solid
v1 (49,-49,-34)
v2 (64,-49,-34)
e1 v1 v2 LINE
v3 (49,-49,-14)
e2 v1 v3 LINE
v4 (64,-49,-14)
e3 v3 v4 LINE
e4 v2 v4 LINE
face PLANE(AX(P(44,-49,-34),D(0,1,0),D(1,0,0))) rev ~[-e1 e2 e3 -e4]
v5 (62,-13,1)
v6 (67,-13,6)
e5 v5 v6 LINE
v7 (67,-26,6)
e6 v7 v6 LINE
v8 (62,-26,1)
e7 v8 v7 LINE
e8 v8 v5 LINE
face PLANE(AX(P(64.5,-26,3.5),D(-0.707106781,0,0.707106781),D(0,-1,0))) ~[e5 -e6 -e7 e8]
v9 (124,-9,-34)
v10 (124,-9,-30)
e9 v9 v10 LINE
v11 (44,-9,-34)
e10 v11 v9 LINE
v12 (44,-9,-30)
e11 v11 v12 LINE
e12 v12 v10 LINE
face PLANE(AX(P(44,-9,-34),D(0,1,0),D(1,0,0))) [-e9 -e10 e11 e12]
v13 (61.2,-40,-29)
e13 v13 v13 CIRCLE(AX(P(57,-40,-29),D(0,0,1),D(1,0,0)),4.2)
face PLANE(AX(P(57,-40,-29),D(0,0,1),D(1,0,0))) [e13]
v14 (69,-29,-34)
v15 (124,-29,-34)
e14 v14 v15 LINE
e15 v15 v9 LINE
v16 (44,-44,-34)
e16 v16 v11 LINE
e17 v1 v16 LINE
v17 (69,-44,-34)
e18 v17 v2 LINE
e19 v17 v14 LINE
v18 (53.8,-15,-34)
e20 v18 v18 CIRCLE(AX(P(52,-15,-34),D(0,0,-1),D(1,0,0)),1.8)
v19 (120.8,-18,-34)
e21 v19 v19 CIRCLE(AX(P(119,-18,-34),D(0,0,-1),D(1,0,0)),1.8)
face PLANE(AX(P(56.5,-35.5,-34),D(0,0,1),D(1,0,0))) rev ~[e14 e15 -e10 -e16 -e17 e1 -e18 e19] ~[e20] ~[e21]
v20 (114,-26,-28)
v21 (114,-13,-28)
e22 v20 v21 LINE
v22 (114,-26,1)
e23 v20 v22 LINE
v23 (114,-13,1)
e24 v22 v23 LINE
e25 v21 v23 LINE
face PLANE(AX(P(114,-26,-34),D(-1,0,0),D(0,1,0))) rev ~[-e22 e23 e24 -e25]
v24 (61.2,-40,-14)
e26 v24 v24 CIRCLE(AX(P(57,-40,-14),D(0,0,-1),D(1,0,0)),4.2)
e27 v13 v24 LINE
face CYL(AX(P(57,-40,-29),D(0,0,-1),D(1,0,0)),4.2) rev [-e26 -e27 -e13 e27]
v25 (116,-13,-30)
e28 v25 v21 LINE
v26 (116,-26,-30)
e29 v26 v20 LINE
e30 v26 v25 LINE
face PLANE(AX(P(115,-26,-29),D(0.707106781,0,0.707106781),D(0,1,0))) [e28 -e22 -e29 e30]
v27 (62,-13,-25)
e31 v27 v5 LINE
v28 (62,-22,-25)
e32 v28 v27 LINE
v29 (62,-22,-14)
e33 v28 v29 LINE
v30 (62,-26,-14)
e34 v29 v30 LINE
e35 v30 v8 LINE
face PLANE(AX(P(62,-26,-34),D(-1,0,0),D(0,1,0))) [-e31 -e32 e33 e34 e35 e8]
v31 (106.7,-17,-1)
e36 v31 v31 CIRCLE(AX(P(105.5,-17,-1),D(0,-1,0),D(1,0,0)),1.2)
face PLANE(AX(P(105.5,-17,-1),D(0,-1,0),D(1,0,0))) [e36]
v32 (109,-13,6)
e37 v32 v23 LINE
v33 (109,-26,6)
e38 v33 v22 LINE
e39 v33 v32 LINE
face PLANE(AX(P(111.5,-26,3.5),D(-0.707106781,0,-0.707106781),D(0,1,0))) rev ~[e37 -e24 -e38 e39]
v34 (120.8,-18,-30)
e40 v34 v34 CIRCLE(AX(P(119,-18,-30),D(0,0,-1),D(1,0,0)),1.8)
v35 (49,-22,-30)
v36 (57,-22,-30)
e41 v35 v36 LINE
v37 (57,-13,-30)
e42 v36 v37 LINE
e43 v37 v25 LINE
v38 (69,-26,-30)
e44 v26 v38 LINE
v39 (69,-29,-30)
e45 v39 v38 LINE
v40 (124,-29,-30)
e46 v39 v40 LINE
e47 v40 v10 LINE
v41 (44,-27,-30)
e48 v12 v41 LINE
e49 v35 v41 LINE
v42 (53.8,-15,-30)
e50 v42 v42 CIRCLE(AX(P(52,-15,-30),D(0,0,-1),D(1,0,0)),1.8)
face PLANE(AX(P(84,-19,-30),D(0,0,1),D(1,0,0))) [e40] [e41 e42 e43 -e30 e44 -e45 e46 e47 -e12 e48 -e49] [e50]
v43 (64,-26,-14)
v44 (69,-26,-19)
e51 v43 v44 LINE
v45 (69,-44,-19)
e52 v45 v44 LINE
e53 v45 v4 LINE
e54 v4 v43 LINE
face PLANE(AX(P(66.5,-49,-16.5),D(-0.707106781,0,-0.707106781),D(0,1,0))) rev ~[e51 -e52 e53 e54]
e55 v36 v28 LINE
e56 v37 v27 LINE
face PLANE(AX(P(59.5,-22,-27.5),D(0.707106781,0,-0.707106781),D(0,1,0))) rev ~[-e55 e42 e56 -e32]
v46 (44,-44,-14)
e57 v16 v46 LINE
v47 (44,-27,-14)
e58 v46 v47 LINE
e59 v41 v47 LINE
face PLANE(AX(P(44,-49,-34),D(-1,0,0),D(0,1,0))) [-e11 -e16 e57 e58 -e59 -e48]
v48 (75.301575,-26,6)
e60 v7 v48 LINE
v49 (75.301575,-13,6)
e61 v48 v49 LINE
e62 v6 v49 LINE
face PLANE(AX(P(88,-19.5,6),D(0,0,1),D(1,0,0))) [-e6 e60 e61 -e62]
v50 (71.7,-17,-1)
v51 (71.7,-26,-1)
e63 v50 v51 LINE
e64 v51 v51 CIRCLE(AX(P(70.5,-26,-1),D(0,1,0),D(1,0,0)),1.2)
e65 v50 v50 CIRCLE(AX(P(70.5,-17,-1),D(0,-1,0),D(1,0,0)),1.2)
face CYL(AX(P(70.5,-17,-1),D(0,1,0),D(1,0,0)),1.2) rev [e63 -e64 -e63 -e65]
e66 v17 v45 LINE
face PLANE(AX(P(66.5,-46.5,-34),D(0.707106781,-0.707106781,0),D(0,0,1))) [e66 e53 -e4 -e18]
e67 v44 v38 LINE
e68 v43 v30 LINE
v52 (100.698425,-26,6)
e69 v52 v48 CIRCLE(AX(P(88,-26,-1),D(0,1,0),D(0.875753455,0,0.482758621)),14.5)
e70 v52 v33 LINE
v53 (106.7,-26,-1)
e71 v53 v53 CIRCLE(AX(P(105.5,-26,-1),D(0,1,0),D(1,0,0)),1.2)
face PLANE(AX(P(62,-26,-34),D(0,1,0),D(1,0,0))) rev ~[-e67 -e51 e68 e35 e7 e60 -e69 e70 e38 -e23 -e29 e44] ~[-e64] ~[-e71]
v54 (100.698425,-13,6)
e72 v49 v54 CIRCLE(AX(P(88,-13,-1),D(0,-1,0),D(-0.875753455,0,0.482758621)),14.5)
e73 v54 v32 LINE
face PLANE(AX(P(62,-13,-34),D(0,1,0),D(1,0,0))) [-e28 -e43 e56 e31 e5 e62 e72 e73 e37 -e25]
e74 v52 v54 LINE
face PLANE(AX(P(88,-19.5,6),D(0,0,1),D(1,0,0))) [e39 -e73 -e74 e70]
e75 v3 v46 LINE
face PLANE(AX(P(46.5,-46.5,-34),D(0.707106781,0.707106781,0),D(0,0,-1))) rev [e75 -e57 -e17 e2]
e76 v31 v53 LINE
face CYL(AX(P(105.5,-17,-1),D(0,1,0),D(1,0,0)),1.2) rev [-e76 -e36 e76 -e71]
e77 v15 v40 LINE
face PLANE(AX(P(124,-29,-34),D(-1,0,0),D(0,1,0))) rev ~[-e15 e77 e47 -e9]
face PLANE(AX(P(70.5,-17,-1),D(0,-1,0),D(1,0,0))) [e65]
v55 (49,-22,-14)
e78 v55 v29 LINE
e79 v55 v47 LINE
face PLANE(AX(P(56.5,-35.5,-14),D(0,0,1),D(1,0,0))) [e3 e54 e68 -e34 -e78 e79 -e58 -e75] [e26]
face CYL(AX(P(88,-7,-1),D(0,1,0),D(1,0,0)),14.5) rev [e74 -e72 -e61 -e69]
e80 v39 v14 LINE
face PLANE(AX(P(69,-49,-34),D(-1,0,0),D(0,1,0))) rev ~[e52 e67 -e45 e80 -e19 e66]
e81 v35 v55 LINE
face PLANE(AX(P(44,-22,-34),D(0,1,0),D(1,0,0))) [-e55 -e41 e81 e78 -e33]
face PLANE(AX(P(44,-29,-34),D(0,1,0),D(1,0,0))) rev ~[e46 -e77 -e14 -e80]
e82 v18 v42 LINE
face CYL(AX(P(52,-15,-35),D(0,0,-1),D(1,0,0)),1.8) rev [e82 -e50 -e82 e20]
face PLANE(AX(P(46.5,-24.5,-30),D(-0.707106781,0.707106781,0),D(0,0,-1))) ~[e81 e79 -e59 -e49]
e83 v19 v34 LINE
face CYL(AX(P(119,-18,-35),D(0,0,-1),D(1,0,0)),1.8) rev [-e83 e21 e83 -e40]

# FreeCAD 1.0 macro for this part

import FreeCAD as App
import Part
import Sketcher
from FreeCAD import Vector


def edges_at(feature, points):
    """Names of the edges that pass closest to the given points."""
    edges = feature.Shape.Edges
    near = lambda p: min(range(len(edges)), key=lambda i: edges[i].distToShape(Part.Vertex(*p))[0])
    return sorted({f"Edge{near(p) + 1}" for p in points})

doc = App.newDocument("Part")
body = doc.addObject("PartDesign::Body", "Body")

# Sketch on XY plane
sketch1 = body.newObject("Sketcher::SketchObject", "Sketch")
sketch1.AttachmentSupport = (doc.getObject("XY_Plane"), [""])
sketch1.MapMode = "FlatFace"
sketch1.addGeometry(Part.Circle(Vector(0, 0, 0), Vector(0, 0, 1), 14), False)
sketch1.addConstraint([
    Sketcher.Constraint("Coincident", 0, 3, -1, 1),
    Sketcher.Constraint("Diameter", 0, 29.0),
])
pad1 = body.newObject("PartDesign::Pad", "Pad")
pad1.Profile = sketch1
pad1.Length = 22
body2 = doc.addObject("PartDesign::Body", "Body001")
doc.recompute()

body.Placement = App.Placement(Vector(0, 0, 0), App.Rotation(Vector(1, 0, 0), 90))
boolean = body2.newObject("PartDesign::Boolean", "Boolean")
boolean.Type = "Fuse"
boolean.addObjects([body])
body3 = doc.addObject("PartDesign::Body", "Body002")
doc.recompute()

body2.Placement = App.Placement(Vector(88, -7, -1), App.Rotation(Vector(0, 0, 1), 0))
boolean2 = body3.newObject("PartDesign::Boolean", "Boolean001")
boolean2.Type = "Fuse"
boolean2.addObjects([body2])
body4 = doc.addObject("PartDesign::Body", "Body003")

# Sketch on XY plane
sketch2 = body4.newObject("Sketcher::SketchObject", "Sketch001")
sketch2.AttachmentSupport = (doc.getObject("XY_Plane003"), [""])
sketch2.MapMode = "FlatFace"
sketch2.AttachmentOffset = App.Placement(Vector(0, 0, -35), App.Rotation())
sketch2.addGeometry(Part.Circle(Vector(52, -15, 0), Vector(0, 0, 1), 1.8), False)
sketch2.addConstraint([
    Sketcher.Constraint("Diameter", 0, 3.6),
    Sketcher.Constraint("DistanceX", -1, 1, 0, 3, 52.0),
    Sketcher.Constraint("DistanceY", 0, 3, -1, 1, 15.0),
])
pad2 = body4.newObject("PartDesign::Pad", "Pad001")
pad2.Profile = sketch2
pad2.Length = 10
body5 = doc.addObject("PartDesign::Body", "Body004")

# Sketch on XY plane
sketch3 = body5.newObject("Sketcher::SketchObject", "Sketch002")
sketch3.AttachmentSupport = (doc.getObject("XY_Plane004"), [""])
sketch3.MapMode = "FlatFace"
sketch3.addGeometry(Part.Circle(Vector(0, 0, 0), Vector(0, 0, 1), 1.2), False)
sketch3.addConstraint([
    Sketcher.Constraint("Coincident", 0, 3, -1, 1),
    Sketcher.Constraint("Diameter", 0, 2.4),
])
pad3 = body5.newObject("PartDesign::Pad", "Pad002")
pad3.Profile = sketch3
pad3.Length = 10
body6 = doc.addObject("PartDesign::Body", "Body005")
doc.recompute()

body5.Placement = App.Placement(Vector(0, 0, 0), App.Rotation(Vector(1, 0, 0), 90))
boolean3 = body6.newObject("PartDesign::Boolean", "Boolean002")
boolean3.Type = "Fuse"
boolean3.addObjects([body5])
body7 = doc.addObject("PartDesign::Body", "Body006")
doc.recompute()

body6.Placement = App.Placement(Vector(70.5, -17, -1), App.Rotation(Vector(0, 0, 1), 0))
boolean4 = body7.newObject("PartDesign::Boolean", "Boolean003")
boolean4.Type = "Fuse"
boolean4.addObjects([body6])
body8 = doc.addObject("PartDesign::Body", "Body007")

# Sketch on XY plane
sketch4 = body8.newObject("Sketcher::SketchObject", "Sketch003")
sketch4.AttachmentSupport = (doc.getObject("XY_Plane007"), [""])
sketch4.MapMode = "FlatFace"
sketch4.addGeometry(Part.Circle(Vector(0, 0, 0), Vector(0, 0, 1), 1.2), False)
sketch4.addConstraint([
    Sketcher.Constraint("Coincident", 0, 3, -1, 1),
    Sketcher.Constraint("Diameter", 0, 2.4),
])
pad4 = body8.newObject("PartDesign::Pad", "Pad003")
pad4.Profile = sketch4
pad4.Length = 10
body9 = doc.addObject("PartDesign::Body", "Body008")
doc.recompute()

body8.Placement = App.Placement(Vector(0, 0, 0), App.Rotation(Vector(1, 0, 0), 90))
boolean5 = body9.newObject("PartDesign::Boolean", "Boolean004")
boolean5.Type = "Fuse"
boolean5.addObjects([body8])
body10 = doc.addObject("PartDesign::Body", "Body009")
doc.recompute()

body9.Placement = App.Placement(Vector(105.5, -17, -1), App.Rotation(Vector(0, 0, 1), 0))
boolean6 = body10.newObject("PartDesign::Boolean", "Boolean005")
boolean6.Type = "Fuse"
boolean6.addObjects([body9])
body11 = doc.addObject("PartDesign::Body", "Body010")
body11.AllowCompound = True

# Sketch on XY plane
sketch5 = body11.newObject("Sketcher::SketchObject", "Sketch004")
sketch5.AttachmentSupport = (doc.getObject("XY_Plane010"), [""])
sketch5.MapMode = "FlatFace"
sketch5.AttachmentOffset = App.Placement(Vector(0, 0, -35), App.Rotation())
sketch5.addGeometry(Part.Circle(Vector(119, -18, 0), Vector(0, 0, 1), 1.8), False)
sketch5.addConstraint([
    Sketcher.Constraint("Diameter", 0, 3.6),
    Sketcher.Constraint("DistanceX", -1, 1, 0, 3, 119.0),
    Sketcher.Constraint("DistanceY", 0, 3, -1, 1, 18.0),
])
pad5 = body11.newObject("PartDesign::Pad", "Pad004")
pad5.Profile = sketch5
pad5.Length = 10
doc.recompute()

boolean7 = body11.newObject("PartDesign::Boolean", "Boolean006")
boolean7.Type = "Fuse"
boolean7.addObjects([body4])
doc.recompute()

boolean8 = body11.newObject("PartDesign::Boolean", "Boolean007")
boolean8.Type = "Fuse"
boolean8.addObjects([body7])
doc.recompute()

boolean9 = body11.newObject("PartDesign::Boolean", "Boolean008")
boolean9.Type = "Fuse"
boolean9.addObjects([body10])
body12 = doc.addObject("PartDesign::Body", "Body011")

# Sketch on XY plane
sketch6 = body12.newObject("Sketcher::SketchObject", "Sketch005")
sketch6.AttachmentSupport = (doc.getObject("XY_Plane011"), [""])
sketch6.MapMode = "FlatFace"
sketch6.AttachmentOffset = App.Placement(Vector(0, 0, -34), App.Rotation())
sketch6.addGeometry([
    Part.LineSegment(Vector(62, -13, 0), Vector(62, -26, 0)),
    Part.LineSegment(Vector(62, -26, 0), Vector(114, -26, 0)),
    Part.LineSegment(Vector(114, -26, 0), Vector(114, -13, 0)),
    Part.LineSegment(Vector(114, -13, 0), Vector(62, -13, 0)),
], False)
sketch6.addConstraint([
    Sketcher.Constraint("Coincident", 0, 2, 1, 1),
    Sketcher.Constraint("Coincident", 1, 2, 2, 1),
    Sketcher.Constraint("Coincident", 2, 2, 3, 1),
    Sketcher.Constraint("Coincident", 3, 2, 0, 1),
    Sketcher.Constraint("Vertical", 0),
    Sketcher.Constraint("Horizontal", 1),
    Sketcher.Constraint("Vertical", 2),
    Sketcher.Constraint("Horizontal", 3),
    Sketcher.Constraint("DistanceX", 1, 1, 1, 2, 52.0),
    Sketcher.Constraint("DistanceY", 0, 2, 0, 1, 13.0),
    Sketcher.Constraint("DistanceX", -1, 1, 0, 2, 62.0),
    Sketcher.Constraint("DistanceY", 0, 2, -1, 1, 26.0),
])
pad6 = body12.newObject("PartDesign::Pad", "Pad005")
pad6.Profile = sketch6
pad6.Length = 40
body13 = doc.addObject("PartDesign::Body", "Body012")

# Sketch on XY plane
sketch7 = body13.newObject("Sketcher::SketchObject", "Sketch006")
sketch7.AttachmentSupport = (doc.getObject("XY_Plane012"), [""])
sketch7.MapMode = "FlatFace"
sketch7.AttachmentOffset = App.Placement(Vector(0, 0, -34), App.Rotation())
sketch7.addGeometry([
    Part.LineSegment(Vector(44, -9, 0), Vector(44, -29, 0)),
    Part.LineSegment(Vector(44, -29, 0), Vector(124, -29, 0)),
    Part.LineSegment(Vector(124, -29, 0), Vector(124, -9, 0)),
    Part.LineSegment(Vector(124, -9, 0), Vector(44, -9, 0)),
], False)
sketch7.addConstraint([
    Sketcher.Constraint("Coincident", 0, 2, 1, 1),
    Sketcher.Constraint("Coincident", 1, 2, 2, 1),
    Sketcher.Constraint("Coincident", 2, 2, 3, 1),
    Sketcher.Constraint("Coincident", 3, 2, 0, 1),
    Sketcher.Constraint("Vertical", 0),
    Sketcher.Constraint("Horizontal", 1),
    Sketcher.Constraint("Vertical", 2),
    Sketcher.Constraint("Horizontal", 3),
    Sketcher.Constraint("DistanceX", 1, 1, 1, 2, 80.0),
    Sketcher.Constraint("DistanceY", 0, 2, 0, 1, 20.0),
    Sketcher.Constraint("DistanceX", -1, 1, 0, 2, 44.0),
    Sketcher.Constraint("DistanceY", 0, 2, -1, 1, 29.0),
])
pad7 = body13.newObject("PartDesign::Pad", "Pad006")
pad7.Profile = sketch7
pad7.Length = 4
body14 = doc.addObject("PartDesign::Body", "Body013")

# Sketch on XY plane
sketch8 = body14.newObject("Sketcher::SketchObject", "Sketch007")
sketch8.AttachmentSupport = (doc.getObject("XY_Plane013"), [""])
sketch8.MapMode = "FlatFace"
sketch8.AttachmentOffset = App.Placement(Vector(0, 0, -29), App.Rotation())
sketch8.addGeometry(Part.Circle(Vector(57, -40, 0), Vector(0, 0, 1), 4.2), False)
sketch8.addConstraint([
    Sketcher.Constraint("Diameter", 0, 8.4),
    Sketcher.Constraint("DistanceX", -1, 1, 0, 3, 57.0),
    Sketcher.Constraint("DistanceY", 0, 3, -1, 1, 40.0),
])
pad8 = body14.newObject("PartDesign::Pad", "Pad007")
pad8.Profile = sketch8
pad8.Length = 200
body15 = doc.addObject("PartDesign::Body", "Body014")

# Sketch on XY plane
sketch9 = body15.newObject("Sketcher::SketchObject", "Sketch008")
sketch9.AttachmentSupport = (doc.getObject("XY_Plane014"), [""])
sketch9.MapMode = "FlatFace"
sketch9.AttachmentOffset = App.Placement(Vector(0, 0, -34), App.Rotation())
sketch9.addGeometry([
    Part.LineSegment(Vector(44, -22, 0), Vector(44, -49, 0)),
    Part.LineSegment(Vector(44, -49, 0), Vector(69, -49, 0)),
    Part.LineSegment(Vector(69, -49, 0), Vector(69, -22, 0)),
    Part.LineSegment(Vector(69, -22, 0), Vector(44, -22, 0)),
], False)
sketch9.addConstraint([
    Sketcher.Constraint("Coincident", 0, 2, 1, 1),
    Sketcher.Constraint("Coincident", 1, 2, 2, 1),
    Sketcher.Constraint("Coincident", 2, 2, 3, 1),
    Sketcher.Constraint("Coincident", 3, 2, 0, 1),
    Sketcher.Constraint("Vertical", 0),
    Sketcher.Constraint("Horizontal", 1),
    Sketcher.Constraint("Vertical", 2),
    Sketcher.Constraint("Horizontal", 3),
    Sketcher.Constraint("DistanceX", 1, 1, 1, 2, 25.0),
    Sketcher.Constraint("DistanceY", 0, 2, 0, 1, 27.0),
    Sketcher.Constraint("DistanceX", -1, 1, 0, 2, 44.0),
    Sketcher.Constraint("DistanceY", 0, 2, -1, 1, 49.0),
])
pad9 = body15.newObject("PartDesign::Pad", "Pad008")
pad9.Profile = sketch9
pad9.Length = 20
doc.recompute()

boolean10 = body15.newObject("PartDesign::Boolean", "Boolean009")
boolean10.Type = "Cut"
boolean10.addObjects([body14])
doc.recompute()

boolean11 = body15.newObject("PartDesign::Boolean", "Boolean010")
boolean11.Type = "Fuse"
boolean11.addObjects([body12])
doc.recompute()

boolean12 = body15.newObject("PartDesign::Boolean", "Boolean011")
boolean12.Type = "Fuse"
boolean12.addObjects([body13])
doc.recompute()

boolean13 = body15.newObject("PartDesign::Boolean", "Boolean012")
boolean13.Type = "Cut"
boolean13.addObjects([body11])
doc.recompute()

boolean14 = body15.newObject("PartDesign::Boolean", "Boolean013")
boolean14.Type = "Cut"
boolean14.addObjects([body3])
doc.recompute()

chamfer = body15.newObject("PartDesign::Chamfer", "Chamfer")
chamfer.Base = (boolean14, edges_at(boolean14, [(69, -37.5, -14)]))
chamfer.Size = 5
doc.recompute()

chamfer2 = body15.newObject("PartDesign::Chamfer", "Chamfer001")
chamfer2.Base = (chamfer, edges_at(chamfer, [(62, -17.5, -30)]))
chamfer2.Size = 5
doc.recompute()

chamfer3 = body15.newObject("PartDesign::Chamfer", "Chamfer002")
chamfer3.Base = (chamfer2, edges_at(chamfer2, [(114, -19.5, -30)]))
chamfer3.Size = 2
doc.recompute()

chamfer4 = body15.newObject("PartDesign::Chamfer", "Chamfer003")
chamfer4.Base = (chamfer3, edges_at(chamfer3, [(44, -22, -22)]))
chamfer4.Size = 5
doc.recompute()

chamfer5 = body15.newObject("PartDesign::Chamfer", "Chamfer004")
chamfer5.Base = (chamfer4, edges_at(chamfer4, [(44, -49, -24)]))
chamfer5.Size = 5
doc.recompute()

chamfer6 = body15.newObject("PartDesign::Chamfer", "Chamfer005")
chamfer6.Base = (chamfer5, edges_at(chamfer5, [(62, -19.5, 6)]))
chamfer6.Size = 5
doc.recompute()

chamfer7 = body15.newObject("PartDesign::Chamfer", "Chamfer006")
chamfer7.Base = (chamfer6, edges_at(chamfer6, [(114, -19.5, 6)]))
chamfer7.Size = 5
doc.recompute()

chamfer8 = body15.newObject("PartDesign::Chamfer", "Chamfer007")
chamfer8.Base = (chamfer7, edges_at(chamfer7, [(69, -49, -26.5)]))
chamfer8.Size = 5

doc.recompute()
